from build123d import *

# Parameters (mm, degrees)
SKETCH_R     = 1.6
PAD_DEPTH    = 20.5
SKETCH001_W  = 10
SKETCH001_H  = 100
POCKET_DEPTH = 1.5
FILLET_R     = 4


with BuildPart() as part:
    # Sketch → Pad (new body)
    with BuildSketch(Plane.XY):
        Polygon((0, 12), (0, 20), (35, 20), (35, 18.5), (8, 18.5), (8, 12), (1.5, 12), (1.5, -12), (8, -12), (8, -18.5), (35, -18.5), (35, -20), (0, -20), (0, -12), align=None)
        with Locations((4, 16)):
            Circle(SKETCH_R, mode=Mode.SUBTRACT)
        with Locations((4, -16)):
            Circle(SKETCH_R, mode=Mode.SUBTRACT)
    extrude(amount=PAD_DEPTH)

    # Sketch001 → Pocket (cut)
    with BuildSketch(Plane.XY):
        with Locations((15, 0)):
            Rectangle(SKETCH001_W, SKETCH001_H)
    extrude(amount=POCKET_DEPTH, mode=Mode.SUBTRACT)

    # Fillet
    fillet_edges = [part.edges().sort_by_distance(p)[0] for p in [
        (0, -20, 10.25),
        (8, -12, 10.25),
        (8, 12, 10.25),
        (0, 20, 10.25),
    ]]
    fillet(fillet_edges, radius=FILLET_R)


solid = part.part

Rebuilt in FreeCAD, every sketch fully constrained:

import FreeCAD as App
import Part
import Sketcher

V = App.Vector
Q = App.Units.Quantity


def edges_at(feature, points):
    """Names of the edges that pass closest to the given points."""
    edges = feature.Shape.Edges
    near = lambda p: min(range(len(edges)), key=lambda i: edges[i].distToShape(Part.Vertex(*p))[0])
    return sorted({f"Edge{near(p) + 1}" for p in points})


def add_polygon(sketch, points):
    """Adds a closed chain of lines whose ends are joined by coincident constraints."""
    first, n = sketch.GeometryCount, len(points)
    for a, b in zip(points, points[1:] + points[:1]):
        sketch.addGeometry(Part.LineSegment(App.Vector(*a, 0), App.Vector(*b, 0)), False)
    for i in range(n):
        sketch.addConstraint(Sketcher.Constraint("Coincident", first + i, 2, first + (i + 1) % n, 1))

doc = App.newDocument("Part")
body = doc.addObject("PartDesign::Body", "Body")

# Sketch on XY plane
sketch1 = doc.addObject("Sketcher::SketchObject", "Sketch")
body.addObject(sketch1)
sketch1.AttachmentSupport = (doc.XY_Plane, [""])
sketch1.MapMode = "FlatFace"
add_polygon(sketch1, [(0, 20), (0, -20), (35, -20), (35, -18.5), (8, -18.5), (8, -12), (1.5, -12), (1.5, 12), (8, 12), (8, 18.5), (35, 18.5), (35, 20)])  # lines 0-11
sketch1.addGeometry(Part.Circle(V(4, -16, 0), V(0, 0, 1), 1.6), False)  # 12
sketch1.addGeometry(Part.Circle(V(4, 16, 0), V(0, 0, 1), 1.6), False)  # 13
sketch1.addConstraint([
    Sketcher.Constraint("Vertical", 0),
    Sketcher.Constraint("Horizontal", 1),
    Sketcher.Constraint("Vertical", 2),
    Sketcher.Constraint("Horizontal", 3),
    Sketcher.Constraint("Vertical", 4),
    Sketcher.Constraint("Horizontal", 5),
    Sketcher.Constraint("Vertical", 6),
    Sketcher.Constraint("Horizontal", 7),
    Sketcher.Constraint("Vertical", 8),
    Sketcher.Constraint("Horizontal", 9),
    Sketcher.Constraint("Vertical", 10),
    Sketcher.Constraint("Horizontal", 11),
    Sketcher.Constraint("Equal", 12, 13),
    Sketcher.Constraint("Symmetric", 0, 2, 11, 2, -1, 1),
    Sketcher.Constraint("Symmetric", 12, 3, 13, 3, -1),
    Sketcher.Constraint("Symmetric", 4, 2, 7, 2, -1),
    Sketcher.Constraint("Symmetric", 2, 2, 9, 2, -1),
    Sketcher.Constraint("Equal", 7, 4),
    Sketcher.Constraint("Diameter", 12, Q("3.2 mm")),
    Sketcher.Constraint("DistanceX", 1, 1, 1, 2, Q("35 mm")),
    Sketcher.Constraint("DistanceX", 3, 2, 3, 1, Q("27 mm")),
    Sketcher.Constraint("DistanceY", 0, 2, 0, 1, Q("40 mm")),
    Sketcher.Constraint("DistanceY", 6, 1, 6, 2, Q("24 mm")),
    Sketcher.Constraint("DistanceX", 5, 2, 5, 1, Q("6.5 mm")),
    Sketcher.Constraint("DistanceX", -1, 1, 12, 3, Q("4 mm")),
    Sketcher.Constraint("DistanceY", 12, 3, -1, 1, Q("16 mm")),
])
pad1 = doc.addObject("PartDesign::Pad", "Pad")
body.addObject(pad1)
pad1.Profile = sketch1
pad1.Length = 20.5

# Sketch on XY plane
sketch2 = doc.addObject("Sketcher::SketchObject", "Sketch001")
body.addObject(sketch2)
sketch2.AttachmentSupport = (doc.XY_Plane, [""])
sketch2.MapMode = "FlatFace"
add_polygon(sketch2, [(10, 50), (10, -50), (20, -50), (20, 50)])  # lines 0-3
sketch2.addConstraint([
    Sketcher.Constraint("Vertical", 0),
    Sketcher.Constraint("Horizontal", 1),
    Sketcher.Constraint("Vertical", 2),
    Sketcher.Constraint("Horizontal", 3),
    Sketcher.Constraint("DistanceX", 1, 1, 1, 2, Q("10 mm")),
    Sketcher.Constraint("DistanceY", 0, 2, 0, 1, Q("100 mm")),
    Sketcher.Constraint("DistanceX", -1, 1, 0, 2, Q("10 mm")),
    Sketcher.Constraint("DistanceY", 0, 2, -1, 1, Q("50 mm")),
])
pocket1 = doc.addObject("PartDesign::Pocket", "Pocket")
body.addObject(pocket1)
pocket1.Profile = sketch2
pocket1.Length = 1.5
pocket1.Reversed = True
doc.recompute()

fillet = doc.addObject("PartDesign::Fillet", "Fillet")
body.addObject(fillet)
fillet.Base = (pocket1, edges_at(pocket1, [
    (0, -20, 10.25),
    (8, -12, 10.25),
    (8, 12, 10.25),
    (0, 20, 10.25),
]))
fillet.Radius = 4

doc.recompute()
